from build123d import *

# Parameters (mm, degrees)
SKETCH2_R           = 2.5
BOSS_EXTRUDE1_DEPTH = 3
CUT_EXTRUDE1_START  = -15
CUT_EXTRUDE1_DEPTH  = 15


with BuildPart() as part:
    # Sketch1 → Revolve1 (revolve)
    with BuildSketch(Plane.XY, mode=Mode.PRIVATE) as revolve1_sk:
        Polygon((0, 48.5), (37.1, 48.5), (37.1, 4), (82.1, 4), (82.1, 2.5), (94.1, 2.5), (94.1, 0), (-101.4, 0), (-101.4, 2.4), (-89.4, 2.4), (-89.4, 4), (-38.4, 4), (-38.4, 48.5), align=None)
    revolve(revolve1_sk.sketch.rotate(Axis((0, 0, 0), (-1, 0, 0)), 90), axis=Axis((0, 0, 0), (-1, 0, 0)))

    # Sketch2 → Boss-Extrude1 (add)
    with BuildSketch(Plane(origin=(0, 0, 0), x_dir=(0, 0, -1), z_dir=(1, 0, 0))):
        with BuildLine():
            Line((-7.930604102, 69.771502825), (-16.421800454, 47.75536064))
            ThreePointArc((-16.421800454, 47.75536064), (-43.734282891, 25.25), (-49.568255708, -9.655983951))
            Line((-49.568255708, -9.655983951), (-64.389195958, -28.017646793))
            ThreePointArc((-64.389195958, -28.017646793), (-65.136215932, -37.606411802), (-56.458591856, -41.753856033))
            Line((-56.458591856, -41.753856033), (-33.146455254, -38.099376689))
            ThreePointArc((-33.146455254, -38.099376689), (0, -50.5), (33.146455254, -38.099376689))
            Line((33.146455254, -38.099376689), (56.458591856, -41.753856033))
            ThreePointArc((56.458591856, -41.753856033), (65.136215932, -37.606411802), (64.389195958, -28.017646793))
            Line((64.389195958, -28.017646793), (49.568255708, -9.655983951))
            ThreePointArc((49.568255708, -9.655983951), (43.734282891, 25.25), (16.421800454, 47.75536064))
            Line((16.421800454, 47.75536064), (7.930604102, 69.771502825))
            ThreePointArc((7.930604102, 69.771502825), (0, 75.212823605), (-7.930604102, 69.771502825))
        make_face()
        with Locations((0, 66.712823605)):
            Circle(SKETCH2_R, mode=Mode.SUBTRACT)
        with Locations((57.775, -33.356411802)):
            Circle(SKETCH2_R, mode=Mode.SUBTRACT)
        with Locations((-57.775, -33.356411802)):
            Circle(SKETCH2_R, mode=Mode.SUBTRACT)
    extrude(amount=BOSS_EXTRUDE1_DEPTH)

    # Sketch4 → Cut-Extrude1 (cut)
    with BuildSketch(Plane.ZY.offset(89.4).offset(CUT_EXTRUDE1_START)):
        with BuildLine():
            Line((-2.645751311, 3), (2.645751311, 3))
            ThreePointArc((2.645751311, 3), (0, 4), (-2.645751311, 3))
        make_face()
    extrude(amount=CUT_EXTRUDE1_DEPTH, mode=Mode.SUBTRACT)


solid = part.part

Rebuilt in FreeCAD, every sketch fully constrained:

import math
import FreeCAD as App
import Part
import Sketcher
Q = App.Units.Quantity


def add_polygon(sketch, points):
    """Adds a closed chain of lines whose ends are joined by coincident constraints."""
    first, n = sketch.GeometryCount, len(points)
    for a, b in zip(points, points[1:] + points[:1]):
        sketch.addGeometry(Part.LineSegment(App.Vector(*a, 0), App.Vector(*b, 0)), False)
    for i in range(n):
        sketch.addConstraint(Sketcher.Constraint("Coincident", first + i, 2, first + (i + 1) % n, 1))

doc = App.newDocument("Part")
params = doc.addObject("Spreadsheet::Sheet", "Params")
for row, (alias, value) in enumerate([
    ("sketch1_width", "51 mm"),
    ("sketch1_width2", "12 mm"),
    ("sketch1_width3", "45 mm"),
    ("sketch1_width4", "75.5 mm"),
    ("sketch1_height", "44.5 mm"),
    ("revolution_angle", "360 deg"),
    ("sketch2_diameter", "5 mm"),
    ("sketch2_diameter2", "5 mm"),
    ("sketch2_diameter3", "5 mm"),
    ("sketch2_radius", "50.5 mm"),
    ("sketch2_radius2", "8.5 mm"),
    ("pad1_length", "3 mm"),
    ("sketch3_radius", "4 mm"),
    ("pocket1_length", "15 mm"),
], start=1):
    params.set(f"A{row}", alias)
    params.set(f"B{row}", "=" + value)
    params.setAlias(f"B{row}", alias)

body = doc.addObject("PartDesign::Body", "Body")

sketch1 = doc.addObject("Sketcher::SketchObject", "Sketch")
body.addObject(sketch1)
sketch1.AttachmentSupport = (doc.XY_Plane, [""])
sketch1.MapMode = "FlatFace"
add_polygon(sketch1, [(37.1, 48.5), (-38.4, 48.5), (-38.4, 4), (-89.4, 4), (-89.4, 2.4), (-101.4, 2.4), (-101.4, 0), (94.1, 0), (94.1, 2.5), (82.1, 2.5), (82.1, 4), (37.1, 4)])
sketch1.addConstraint([
    Sketcher.Constraint("Horizontal", 0),
    Sketcher.Constraint("Vertical", 1),
    Sketcher.Constraint("Horizontal", 2),
    Sketcher.Constraint("Vertical", 3),
    Sketcher.Constraint("Horizontal", 4),
    Sketcher.Constraint("Vertical", 5),
    Sketcher.Constraint("Horizontal", 6),
    Sketcher.Constraint("Vertical", 7),
    Sketcher.Constraint("Horizontal", 8),
    Sketcher.Constraint("Vertical", 9),
    Sketcher.Constraint("Horizontal", 10),
    Sketcher.Constraint("Vertical", 11),
    Sketcher.Constraint("PointOnObject", 5, 2, -1),
    Sketcher.Constraint("Horizontal", 2, 2, 9, 2),
    Sketcher.Constraint("Equal", 4, 8),
    Sketcher.Constraint("DistanceX", 2, 2, 2, 1, Q("51 mm")),
    Sketcher.Constraint("DistanceX", 4, 2, 4, 1, Q("12 mm")),
    Sketcher.Constraint("DistanceX", 10, 2, 10, 1, Q("45 mm")),
    Sketcher.Constraint("DistanceX", 0, 2, 0, 1, Q("75.5 mm")),
    Sketcher.Constraint("DistanceY", 1, 2, 1, 1, Q("44.5 mm")),
    Sketcher.Constraint("DistanceY", 3, 2, 3, 1, Q("1.6 mm")),
    Sketcher.Constraint("DistanceY", 5, 2, 5, 1, Q("2.4 mm")),
    Sketcher.Constraint("DistanceY", 7, 1, 7, 2, Q("2.5 mm")),
    Sketcher.Constraint("DistanceX", 0, 2, -1, 1, Q("38.4 mm")),
])
sketch1.setExpression("Constraints[27]", "Params.sketch1_width")
sketch1.setExpression("Constraints[28]", "Params.sketch1_width2")
sketch1.setExpression("Constraints[29]", "Params.sketch1_width3")
sketch1.setExpression("Constraints[30]", "Params.sketch1_width4")
sketch1.setExpression("Constraints[31]", "Params.sketch1_height")
revolution = doc.addObject("PartDesign::Revolution", "Revolution")
body.addObject(revolution)
revolution.Profile = sketch1
revolution.ReferenceAxis = (sketch1, ["H_Axis"])
revolution.setExpression("Angle", "Params.revolution_angle")

sketch2 = doc.addObject("Sketcher::SketchObject", "Sketch001")
body.addObject(sketch2)
sketch2.AttachmentSupport = (doc.YZ_Plane, [""])
sketch2.MapMode = "FlatFace"
sketch2.addGeometry([
    Part.LineSegment(App.Vector(69.771503, 7.930604, 0), App.Vector(47.755361, 16.4218, 0)),
    Part.ArcOfCircle(Part.Circle(App.Vector(0, 0, 0), App.Vector(0, 0, 1), 50.5), math.radians(18.976733), math.radians(101.023267)),
    Part.LineSegment(App.Vector(-9.655984, 49.568256, 0), App.Vector(-28.017647, 64.389196, 0)),
    Part.ArcOfCircle(Part.Circle(App.Vector(-33.356412, 57.775, 0), App.Vector(0, 0, 1), 8.5), math.radians(51.090654), math.radians(188.909346)),
    Part.LineSegment(App.Vector(-41.753856, 56.458592, 0), App.Vector(-38.099377, 33.146455, 0)),
    Part.ArcOfCircle(Part.Circle(App.Vector(0, 0, 0), App.Vector(0, 0, 1), 50.5), math.radians(138.976733), math.radians(221.023267)),
    Part.LineSegment(App.Vector(-38.099377, -33.146455, 0), App.Vector(-41.753856, -56.458592, 0)),
    Part.ArcOfCircle(Part.Circle(App.Vector(-33.356412, -57.775, 0), App.Vector(0, 0, 1), 8.5), math.radians(171.090654), math.radians(308.909346)),
    Part.LineSegment(App.Vector(-28.017647, -64.389196, 0), App.Vector(-9.655984, -49.568256, 0)),
    Part.ArcOfCircle(Part.Circle(App.Vector(0, 0, 0), App.Vector(0, 0, 1), 50.5), math.radians(-101.023267), math.radians(-18.976733)),
    Part.LineSegment(App.Vector(47.755361, -16.4218, 0), App.Vector(69.771503, -7.930604, 0)),
    Part.ArcOfCircle(Part.Circle(App.Vector(66.712824, 0, 0), App.Vector(0, 0, 1), 8.5), math.radians(-68.909346), math.radians(68.909346)),
    Part.Circle(App.Vector(-33.356412, 57.775, 0), App.Vector(0, 0, 1), 2.5),
    Part.Circle(App.Vector(-33.356412, -57.775, 0), App.Vector(0, 0, 1), 2.5),
    Part.Circle(App.Vector(66.712824, 0, 0), App.Vector(0, 0, 1), 2.5),
], False)
sketch2.addConstraint([
    Sketcher.Constraint("Coincident", 0, 2, 1, 1),
    Sketcher.Constraint("Coincident", 1, 2, 2, 1),
    Sketcher.Constraint("Coincident", 2, 2, 3, 1),
    Sketcher.Constraint("Coincident", 3, 2, 4, 1),
    Sketcher.Constraint("Coincident", 4, 2, 5, 1),
    Sketcher.Constraint("Coincident", 5, 2, 6, 1),
    Sketcher.Constraint("Coincident", 6, 2, 7, 1),
    Sketcher.Constraint("Coincident", 7, 2, 8, 1),
    Sketcher.Constraint("Coincident", 8, 2, 9, 1),
    Sketcher.Constraint("Coincident", 9, 2, 10, 1),
    Sketcher.Constraint("Coincident", 10, 2, 11, 1),
    Sketcher.Constraint("Coincident", 11, 2, 0, 1),
    Sketcher.Constraint("Coincident", 1, 3, -1, 1),
    Sketcher.Constraint("Coincident", 5, 3, -1, 1),
    Sketcher.Constraint("Coincident", 9, 3, -1, 1),
    Sketcher.Constraint("Coincident", 12, 3, 3, 3),
    Sketcher.Constraint("Coincident", 13, 3, 7, 3),
    Sketcher.Constraint("Coincident", 14, 3, 11, 3),
    Sketcher.Constraint("PointOnObject", 11, 3, -1),
    Sketcher.Constraint("Diameter", 12, Q("5 mm")),
    Sketcher.Constraint("Diameter", 13, Q("5 mm")),
    Sketcher.Constraint("Diameter", 14, Q("5 mm")),
    Sketcher.Constraint("Radius", 1, Q("50.5 mm")),
    Sketcher.Constraint("Radius", 3, Q("8.5 mm")),
    Sketcher.Constraint("Radius", 5, Q("50.5 mm")),
    Sketcher.Constraint("Radius", 7, Q("8.5 mm")),
    Sketcher.Constraint("Radius", 9, Q("50.5 mm")),
    Sketcher.Constraint("Radius", 11, Q("8.5 mm")),
    Sketcher.Constraint("DistanceY", 7, 3, 3, 3, Q("115.55 mm")),
    Sketcher.Constraint("DistanceY", -1, 1, 3, 3, Q("57.775 mm")),
    Sketcher.Constraint("DistanceY", -1, 1, 0, 2, Q("16.4218 mm")),
    Sketcher.Constraint("DistanceY", 9, 2, -1, 1, Q("16.4218 mm")),
    Sketcher.Constraint("DistanceY", 4, 2, 1, 2, Q("16.4218 mm")),
    Sketcher.Constraint("DistanceY", 8, 2, 5, 2, Q("16.4218 mm")),
    Sketcher.Constraint("Distance", 0, Q("23.596842 mm")),
    Sketcher.Constraint("Distance", 2, Q("23.596842 mm")),
    Sketcher.Constraint("Distance", 4, Q("23.596842 mm")),
    Sketcher.Constraint("Distance", 6, Q("23.596842 mm")),
    Sketcher.Constraint("Distance", 8, Q("23.596842 mm")),
    Sketcher.Constraint("Distance", 10, Q("23.596842 mm")),
    Sketcher.Constraint("DistanceX", 3, 3, -1, 1, Q("33.356412 mm")),
    Sketcher.Constraint("DistanceX", 7, 3, -1, 1, Q("33.356412 mm")),
    Sketcher.Constraint("DistanceY", -1, 1, 3, 2, Q("56.458592 mm")),
    Sketcher.Constraint("DistanceY", 6, 2, -1, 1, Q("56.458592 mm")),
    Sketcher.Constraint("DistanceX", 11, 3, 10, 2, Q("3.058679 mm")),
])
sketch2.setExpression("Constraints[19]", "Params.sketch2_diameter")
sketch2.setExpression("Constraints[20]", "Params.sketch2_diameter2")
sketch2.setExpression("Constraints[21]", "Params.sketch2_diameter3")
sketch2.setExpression("Constraints[22]", "Params.sketch2_radius")
sketch2.setExpression("Constraints[23]", "Params.sketch2_radius2")
pad1 = doc.addObject("PartDesign::Pad", "Pad")
body.addObject(pad1)
pad1.Profile = sketch2
pad1.setExpression("Length", "Params.pad1_length")

sketch3 = doc.addObject("Sketcher::SketchObject", "Sketch002")
body.addObject(sketch3)
sketch3.AttachmentSupport = (doc.YZ_Plane, [""])
sketch3.MapMode = "FlatFace"
sketch3.AttachmentOffset = App.Placement(App.Vector(0, 0, -74.4), App.Rotation())
sketch3.addGeometry([
    Part.LineSegment(App.Vector(3, -2.6, 0), App.Vector(3, 2.6, 0)),
    Part.ArcOfCircle(Part.Circle(App.Vector(0, 0, 0), App.Vector(0, 0, 1), 4), math.radians(-41), math.radians(41)),
], False)
sketch3.addConstraint([
    Sketcher.Constraint("Coincident", 0, 1, 1, 1),
    Sketcher.Constraint("Coincident", 1, 2, 0, 2),
    Sketcher.Constraint("Vertical", 0),
    Sketcher.Constraint("Coincident", 1, 3, -1, 1),
    Sketcher.Constraint("Radius", 1, Q("4 mm")),
    Sketcher.Constraint("DistanceX", -1, 1, 0, 1, Q("3 mm")),
])
sketch3.setExpression("Constraints[4]", "Params.sketch3_radius")
pocket1 = doc.addObject("PartDesign::Pocket", "Pocket")
body.addObject(pocket1)
pocket1.Profile = sketch3
pocket1.setExpression("Length", "Params.pocket1_length")

doc.recompute()
